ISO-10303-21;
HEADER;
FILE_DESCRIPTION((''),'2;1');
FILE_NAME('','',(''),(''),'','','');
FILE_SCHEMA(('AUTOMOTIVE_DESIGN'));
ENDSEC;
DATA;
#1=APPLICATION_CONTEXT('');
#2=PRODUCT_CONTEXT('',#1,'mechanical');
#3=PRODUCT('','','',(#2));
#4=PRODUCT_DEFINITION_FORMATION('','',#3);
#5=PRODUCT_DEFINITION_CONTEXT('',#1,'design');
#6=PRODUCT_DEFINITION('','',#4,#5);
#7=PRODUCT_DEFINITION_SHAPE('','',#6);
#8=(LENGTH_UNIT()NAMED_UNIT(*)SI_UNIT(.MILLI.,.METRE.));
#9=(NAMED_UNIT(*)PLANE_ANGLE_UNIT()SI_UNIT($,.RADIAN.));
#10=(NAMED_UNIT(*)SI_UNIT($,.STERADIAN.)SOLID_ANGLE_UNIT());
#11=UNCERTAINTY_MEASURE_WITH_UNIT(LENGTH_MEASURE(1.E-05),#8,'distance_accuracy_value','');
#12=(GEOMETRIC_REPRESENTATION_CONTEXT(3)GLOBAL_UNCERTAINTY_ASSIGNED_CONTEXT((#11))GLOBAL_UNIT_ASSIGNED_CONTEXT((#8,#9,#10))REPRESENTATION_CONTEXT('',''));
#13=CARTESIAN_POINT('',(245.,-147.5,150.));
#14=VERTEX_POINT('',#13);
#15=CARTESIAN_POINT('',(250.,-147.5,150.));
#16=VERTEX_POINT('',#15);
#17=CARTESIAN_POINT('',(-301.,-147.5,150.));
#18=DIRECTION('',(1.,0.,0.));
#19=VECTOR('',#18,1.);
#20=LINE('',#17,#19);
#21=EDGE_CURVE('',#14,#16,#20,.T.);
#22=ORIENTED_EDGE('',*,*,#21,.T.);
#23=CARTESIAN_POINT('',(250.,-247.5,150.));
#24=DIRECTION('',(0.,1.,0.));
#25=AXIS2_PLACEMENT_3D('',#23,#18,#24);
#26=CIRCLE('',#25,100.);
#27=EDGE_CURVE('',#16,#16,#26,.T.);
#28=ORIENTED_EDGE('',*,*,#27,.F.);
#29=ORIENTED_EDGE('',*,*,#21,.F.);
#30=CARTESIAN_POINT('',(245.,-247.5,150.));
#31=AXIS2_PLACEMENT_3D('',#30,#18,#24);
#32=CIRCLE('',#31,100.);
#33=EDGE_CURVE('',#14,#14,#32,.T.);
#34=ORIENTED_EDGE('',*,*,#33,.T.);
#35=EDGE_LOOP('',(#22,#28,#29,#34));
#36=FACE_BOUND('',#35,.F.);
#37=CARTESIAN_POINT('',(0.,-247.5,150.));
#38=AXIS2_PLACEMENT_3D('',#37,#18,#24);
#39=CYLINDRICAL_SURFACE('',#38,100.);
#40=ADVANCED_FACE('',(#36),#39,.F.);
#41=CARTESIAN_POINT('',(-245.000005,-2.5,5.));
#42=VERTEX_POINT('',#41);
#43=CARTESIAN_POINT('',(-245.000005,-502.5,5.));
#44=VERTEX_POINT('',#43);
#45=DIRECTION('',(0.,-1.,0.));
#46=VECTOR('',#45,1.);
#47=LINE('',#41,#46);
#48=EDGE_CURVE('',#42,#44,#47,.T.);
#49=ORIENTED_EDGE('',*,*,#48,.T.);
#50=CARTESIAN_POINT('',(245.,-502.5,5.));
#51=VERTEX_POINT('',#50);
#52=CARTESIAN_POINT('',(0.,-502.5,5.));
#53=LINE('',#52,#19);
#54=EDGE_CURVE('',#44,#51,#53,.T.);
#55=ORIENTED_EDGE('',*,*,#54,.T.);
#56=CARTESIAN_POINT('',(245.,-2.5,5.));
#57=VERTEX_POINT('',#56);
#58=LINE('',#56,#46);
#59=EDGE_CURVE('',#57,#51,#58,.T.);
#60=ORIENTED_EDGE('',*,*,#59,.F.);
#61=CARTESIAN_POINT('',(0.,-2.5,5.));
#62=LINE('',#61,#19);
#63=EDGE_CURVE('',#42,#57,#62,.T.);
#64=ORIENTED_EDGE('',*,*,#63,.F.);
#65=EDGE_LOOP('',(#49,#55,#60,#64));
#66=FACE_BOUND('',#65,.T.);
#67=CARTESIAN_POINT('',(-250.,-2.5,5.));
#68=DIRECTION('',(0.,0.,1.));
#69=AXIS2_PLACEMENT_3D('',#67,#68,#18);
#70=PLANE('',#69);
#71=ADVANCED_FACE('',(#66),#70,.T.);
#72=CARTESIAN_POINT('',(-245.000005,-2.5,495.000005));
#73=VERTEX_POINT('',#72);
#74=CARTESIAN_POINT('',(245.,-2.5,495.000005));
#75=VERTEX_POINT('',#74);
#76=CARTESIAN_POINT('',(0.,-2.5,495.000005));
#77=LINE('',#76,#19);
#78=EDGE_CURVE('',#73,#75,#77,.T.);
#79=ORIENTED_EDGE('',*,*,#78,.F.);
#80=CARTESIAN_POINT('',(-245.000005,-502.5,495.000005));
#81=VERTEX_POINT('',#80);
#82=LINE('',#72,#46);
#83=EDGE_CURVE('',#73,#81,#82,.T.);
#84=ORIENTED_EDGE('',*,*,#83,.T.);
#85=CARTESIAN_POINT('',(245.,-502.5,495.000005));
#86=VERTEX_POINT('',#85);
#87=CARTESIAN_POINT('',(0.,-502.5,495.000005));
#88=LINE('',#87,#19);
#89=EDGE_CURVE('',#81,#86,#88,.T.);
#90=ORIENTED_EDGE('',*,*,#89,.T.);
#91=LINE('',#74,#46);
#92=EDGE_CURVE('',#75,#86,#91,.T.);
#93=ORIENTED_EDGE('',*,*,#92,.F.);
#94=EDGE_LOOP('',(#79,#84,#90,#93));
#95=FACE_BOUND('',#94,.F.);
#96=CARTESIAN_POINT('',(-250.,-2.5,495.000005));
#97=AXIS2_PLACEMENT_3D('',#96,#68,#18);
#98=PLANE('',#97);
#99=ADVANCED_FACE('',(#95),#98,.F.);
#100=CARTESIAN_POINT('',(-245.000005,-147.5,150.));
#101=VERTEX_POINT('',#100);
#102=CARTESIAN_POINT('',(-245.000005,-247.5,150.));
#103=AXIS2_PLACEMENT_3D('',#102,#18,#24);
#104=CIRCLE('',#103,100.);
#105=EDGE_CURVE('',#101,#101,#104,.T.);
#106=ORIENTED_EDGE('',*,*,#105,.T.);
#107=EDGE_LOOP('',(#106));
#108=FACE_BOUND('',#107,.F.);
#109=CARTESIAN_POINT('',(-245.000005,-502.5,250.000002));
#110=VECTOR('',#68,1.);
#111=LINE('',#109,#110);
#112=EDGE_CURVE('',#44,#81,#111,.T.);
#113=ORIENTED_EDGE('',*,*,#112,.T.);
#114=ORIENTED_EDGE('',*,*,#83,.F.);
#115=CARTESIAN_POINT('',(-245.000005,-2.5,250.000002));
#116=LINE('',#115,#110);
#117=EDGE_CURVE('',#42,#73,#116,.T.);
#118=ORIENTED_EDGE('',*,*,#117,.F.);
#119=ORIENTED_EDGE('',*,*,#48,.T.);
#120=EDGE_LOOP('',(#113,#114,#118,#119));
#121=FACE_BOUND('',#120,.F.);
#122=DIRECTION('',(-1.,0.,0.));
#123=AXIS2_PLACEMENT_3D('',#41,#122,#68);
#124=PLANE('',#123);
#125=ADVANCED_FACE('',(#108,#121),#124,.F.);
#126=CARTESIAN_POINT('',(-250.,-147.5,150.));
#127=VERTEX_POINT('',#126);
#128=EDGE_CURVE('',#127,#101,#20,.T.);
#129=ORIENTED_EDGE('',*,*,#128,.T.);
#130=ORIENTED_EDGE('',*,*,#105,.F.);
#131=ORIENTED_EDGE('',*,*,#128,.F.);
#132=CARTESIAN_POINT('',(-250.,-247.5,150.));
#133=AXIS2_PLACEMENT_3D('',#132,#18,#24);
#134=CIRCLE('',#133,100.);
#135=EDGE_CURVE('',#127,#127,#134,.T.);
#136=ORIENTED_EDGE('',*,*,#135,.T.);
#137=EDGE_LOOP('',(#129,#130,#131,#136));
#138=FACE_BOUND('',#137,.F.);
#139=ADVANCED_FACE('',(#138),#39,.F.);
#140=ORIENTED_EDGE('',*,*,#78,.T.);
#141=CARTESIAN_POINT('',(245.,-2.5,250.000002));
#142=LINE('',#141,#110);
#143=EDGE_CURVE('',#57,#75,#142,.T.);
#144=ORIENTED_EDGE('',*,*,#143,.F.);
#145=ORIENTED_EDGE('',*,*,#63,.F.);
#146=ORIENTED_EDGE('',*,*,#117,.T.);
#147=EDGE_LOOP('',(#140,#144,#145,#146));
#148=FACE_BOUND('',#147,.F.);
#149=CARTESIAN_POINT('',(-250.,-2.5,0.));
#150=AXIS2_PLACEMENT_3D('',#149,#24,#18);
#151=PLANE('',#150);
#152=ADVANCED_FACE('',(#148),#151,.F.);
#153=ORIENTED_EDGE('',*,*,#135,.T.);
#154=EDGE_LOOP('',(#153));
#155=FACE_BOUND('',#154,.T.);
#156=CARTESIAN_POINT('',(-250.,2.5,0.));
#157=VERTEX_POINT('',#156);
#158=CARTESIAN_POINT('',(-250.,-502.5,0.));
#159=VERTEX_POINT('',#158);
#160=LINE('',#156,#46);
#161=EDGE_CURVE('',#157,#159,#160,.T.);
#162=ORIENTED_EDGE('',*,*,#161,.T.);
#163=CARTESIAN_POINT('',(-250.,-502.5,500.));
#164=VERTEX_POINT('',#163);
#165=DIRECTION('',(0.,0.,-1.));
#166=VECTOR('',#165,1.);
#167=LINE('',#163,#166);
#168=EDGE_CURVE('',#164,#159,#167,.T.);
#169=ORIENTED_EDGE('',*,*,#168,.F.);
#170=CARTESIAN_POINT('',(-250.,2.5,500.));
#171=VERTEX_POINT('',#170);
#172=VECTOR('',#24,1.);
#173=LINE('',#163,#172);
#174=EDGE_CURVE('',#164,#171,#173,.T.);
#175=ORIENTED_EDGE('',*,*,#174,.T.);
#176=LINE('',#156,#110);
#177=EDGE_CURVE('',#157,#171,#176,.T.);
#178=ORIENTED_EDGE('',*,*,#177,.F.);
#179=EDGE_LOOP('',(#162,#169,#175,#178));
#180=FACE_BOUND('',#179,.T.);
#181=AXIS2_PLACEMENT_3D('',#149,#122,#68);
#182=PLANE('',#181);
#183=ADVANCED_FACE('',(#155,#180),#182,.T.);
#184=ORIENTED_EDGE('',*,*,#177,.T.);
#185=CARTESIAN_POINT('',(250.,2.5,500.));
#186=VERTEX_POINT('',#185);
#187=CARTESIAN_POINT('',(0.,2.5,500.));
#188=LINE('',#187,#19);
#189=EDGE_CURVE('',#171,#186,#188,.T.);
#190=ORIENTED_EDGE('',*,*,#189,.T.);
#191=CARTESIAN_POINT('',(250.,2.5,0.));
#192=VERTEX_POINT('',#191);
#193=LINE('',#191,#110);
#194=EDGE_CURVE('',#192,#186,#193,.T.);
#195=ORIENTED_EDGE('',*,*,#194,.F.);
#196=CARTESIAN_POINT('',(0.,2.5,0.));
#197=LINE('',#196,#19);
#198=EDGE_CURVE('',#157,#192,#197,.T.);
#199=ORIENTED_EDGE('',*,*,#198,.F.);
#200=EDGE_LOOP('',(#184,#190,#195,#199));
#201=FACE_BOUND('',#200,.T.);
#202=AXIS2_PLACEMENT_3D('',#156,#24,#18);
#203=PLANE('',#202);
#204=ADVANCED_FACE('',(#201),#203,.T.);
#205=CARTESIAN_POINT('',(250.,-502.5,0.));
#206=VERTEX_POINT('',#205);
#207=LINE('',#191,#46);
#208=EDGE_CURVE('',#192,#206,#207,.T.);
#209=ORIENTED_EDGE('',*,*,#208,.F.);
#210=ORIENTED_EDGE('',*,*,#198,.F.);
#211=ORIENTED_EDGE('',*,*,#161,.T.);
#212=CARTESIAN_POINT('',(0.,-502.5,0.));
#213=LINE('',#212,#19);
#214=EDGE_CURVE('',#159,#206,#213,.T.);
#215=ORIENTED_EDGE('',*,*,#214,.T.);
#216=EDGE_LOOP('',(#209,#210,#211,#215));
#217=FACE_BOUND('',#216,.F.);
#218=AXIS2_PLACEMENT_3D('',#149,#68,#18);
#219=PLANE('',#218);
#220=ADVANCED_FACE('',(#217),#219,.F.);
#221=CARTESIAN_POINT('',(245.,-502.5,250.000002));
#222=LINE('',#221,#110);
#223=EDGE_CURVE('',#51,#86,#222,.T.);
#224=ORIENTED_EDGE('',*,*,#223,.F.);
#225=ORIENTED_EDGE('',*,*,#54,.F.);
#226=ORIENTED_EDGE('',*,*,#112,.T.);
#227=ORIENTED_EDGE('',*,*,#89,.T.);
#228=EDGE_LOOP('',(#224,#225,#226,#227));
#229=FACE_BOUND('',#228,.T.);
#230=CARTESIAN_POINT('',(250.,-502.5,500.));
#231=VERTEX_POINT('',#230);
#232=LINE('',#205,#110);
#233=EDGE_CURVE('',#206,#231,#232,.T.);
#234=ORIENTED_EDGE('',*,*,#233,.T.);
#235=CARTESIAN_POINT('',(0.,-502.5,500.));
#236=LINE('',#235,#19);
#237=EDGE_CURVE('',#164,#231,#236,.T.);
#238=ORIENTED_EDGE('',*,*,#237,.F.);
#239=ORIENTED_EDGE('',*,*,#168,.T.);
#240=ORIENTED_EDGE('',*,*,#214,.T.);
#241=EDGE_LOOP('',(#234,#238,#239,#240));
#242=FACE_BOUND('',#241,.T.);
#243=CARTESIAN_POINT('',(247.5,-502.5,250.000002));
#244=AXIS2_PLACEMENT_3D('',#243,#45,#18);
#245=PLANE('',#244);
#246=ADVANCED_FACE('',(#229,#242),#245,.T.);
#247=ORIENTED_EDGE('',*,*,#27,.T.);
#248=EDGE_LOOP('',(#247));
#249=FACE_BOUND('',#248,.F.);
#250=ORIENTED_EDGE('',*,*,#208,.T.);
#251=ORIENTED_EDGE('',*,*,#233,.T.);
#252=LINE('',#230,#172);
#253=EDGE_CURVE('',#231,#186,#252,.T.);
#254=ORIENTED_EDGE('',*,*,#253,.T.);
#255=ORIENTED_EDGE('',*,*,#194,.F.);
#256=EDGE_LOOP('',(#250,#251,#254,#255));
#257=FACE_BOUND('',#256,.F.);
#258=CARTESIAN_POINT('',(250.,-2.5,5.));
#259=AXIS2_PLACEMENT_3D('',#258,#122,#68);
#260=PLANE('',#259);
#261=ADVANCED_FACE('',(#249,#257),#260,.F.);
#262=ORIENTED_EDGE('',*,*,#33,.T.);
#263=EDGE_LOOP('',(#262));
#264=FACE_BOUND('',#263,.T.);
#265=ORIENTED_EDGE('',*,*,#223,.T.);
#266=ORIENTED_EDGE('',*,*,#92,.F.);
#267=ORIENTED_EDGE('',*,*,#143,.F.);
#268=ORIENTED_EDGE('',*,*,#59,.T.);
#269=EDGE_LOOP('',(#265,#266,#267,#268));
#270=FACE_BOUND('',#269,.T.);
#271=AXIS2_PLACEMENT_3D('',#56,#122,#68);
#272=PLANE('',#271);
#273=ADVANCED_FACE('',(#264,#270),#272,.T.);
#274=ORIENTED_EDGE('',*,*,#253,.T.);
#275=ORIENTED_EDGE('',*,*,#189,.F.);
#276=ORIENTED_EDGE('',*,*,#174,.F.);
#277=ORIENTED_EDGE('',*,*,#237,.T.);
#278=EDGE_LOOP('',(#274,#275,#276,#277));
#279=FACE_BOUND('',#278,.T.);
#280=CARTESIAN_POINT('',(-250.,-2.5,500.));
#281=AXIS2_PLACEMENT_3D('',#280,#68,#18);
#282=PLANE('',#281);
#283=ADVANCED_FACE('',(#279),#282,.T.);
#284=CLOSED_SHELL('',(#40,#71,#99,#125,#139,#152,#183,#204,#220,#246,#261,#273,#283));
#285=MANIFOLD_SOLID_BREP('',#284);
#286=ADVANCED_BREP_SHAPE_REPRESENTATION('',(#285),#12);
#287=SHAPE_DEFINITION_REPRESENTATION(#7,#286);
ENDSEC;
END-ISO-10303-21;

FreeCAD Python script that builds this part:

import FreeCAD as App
import Part
import Sketcher
from FreeCAD import Vector

doc = App.newDocument("Part")
params = doc.addObject("Spreadsheet::Sheet", "Params")
for row, (alias, value) in enumerate([
    ("sketch1_width", "500 mm"),
    ("sketch1_height", "5 mm"),
    ("pad1_length", "500 mm"),
    ("sketch2_width", "500 mm"),
    ("pad2_length", "500 mm"),
    ("sketch3_width", "500 mm"),
    ("sketch3_height", "5 mm"),
    ("pad3_length", "500 mm"),
    ("sketch4_width", "5 mm"),
    ("pad4_length", "500 mm"),
    ("sketch5_diameter", "200 mm"),
    ("pocket1_length", "602 mm"),
], start=1):
    params.set(f"A{row}", alias)
    params.set(f"B{row}", "=" + value)
    params.setAlias(f"B{row}", alias)

body = doc.addObject("PartDesign::Body", "Body")

# Sketch on XY plane
sketch1 = body.newObject("Sketcher::SketchObject", "Sketch")
sketch1.AttachmentSupport = (doc.getObject("XY_Plane"), [""])
sketch1.MapMode = "FlatFace"
sketch1.addGeometry([
    Part.LineSegment(Vector(-250, 2.5, 0), Vector(-250, -2.5, 0)),
    Part.LineSegment(Vector(-250, -2.5, 0), Vector(250, -2.5, 0)),
    Part.LineSegment(Vector(250, -2.5, 0), Vector(250, 2.5, 0)),
    Part.LineSegment(Vector(250, 2.5, 0), Vector(-250, 2.5, 0)),
], False)
sketch1.addConstraint([
    Sketcher.Constraint("Coincident", 0, 2, 1, 1),
    Sketcher.Constraint("Coincident", 1, 2, 2, 1),
    Sketcher.Constraint("Coincident", 2, 2, 3, 1),
    Sketcher.Constraint("Coincident", 3, 2, 0, 1),
    Sketcher.Constraint("Vertical", 0),
    Sketcher.Constraint("Horizontal", 1),
    Sketcher.Constraint("Vertical", 2),
    Sketcher.Constraint("Horizontal", 3),
    Sketcher.Constraint("Symmetric", 0, 2, 2, 2, -1, 1),
    Sketcher.Constraint("DistanceX", 1, 1, 1, 2, 500.0),
    Sketcher.Constraint("DistanceY", 0, 2, 0, 1, 5.0),
])
sketch1.setExpression("Constraints[9]", "Params.sketch1_width")
sketch1.setExpression("Constraints[10]", "Params.sketch1_height")
pad1 = body.newObject("PartDesign::Pad", "Pad")
pad1.Profile = sketch1
pad1.setExpression("Length", "Params.pad1_length")

# Sketch on XZ plane
sketch2 = body.newObject("Sketcher::SketchObject", "Sketch001")
sketch2.AttachmentSupport = (doc.getObject("XZ_Plane"), [""])
sketch2.MapMode = "FlatFace"
sketch2.AttachmentOffset = App.Placement(Vector(0, 0, 2.5), App.Rotation())
sketch2.addGeometry([
    Part.LineSegment(Vector(-250, 500, 0), Vector(-250, 495.000005, 0)),
    Part.LineSegment(Vector(-250, 495.000005, 0), Vector(250, 495.000005, 0)),
    Part.LineSegment(Vector(250, 495.000005, 0), Vector(250, 500, 0)),
    Part.LineSegment(Vector(250, 500, 0), Vector(-250, 500, 0)),
], False)
sketch2.addConstraint([
    Sketcher.Constraint("Coincident", 0, 2, 1, 1),
    Sketcher.Constraint("Coincident", 1, 2, 2, 1),
    Sketcher.Constraint("Coincident", 2, 2, 3, 1),
    Sketcher.Constraint("Coincident", 3, 2, 0, 1),
    Sketcher.Constraint("Vertical", 0),
    Sketcher.Constraint("Horizontal", 1),
    Sketcher.Constraint("Vertical", 2),
    Sketcher.Constraint("Horizontal", 3),
    Sketcher.Constraint("DistanceX", 1, 1, 1, 2, 500.0),
    Sketcher.Constraint("DistanceX", 0, 2, -1, 1, 250.0),
    Sketcher.Constraint("DistanceY", -1, 1, 2, 2, 500.0),
    Sketcher.Constraint("DistanceY", 0, 2, 0, 1, 4.999995),
])
sketch2.setExpression("Constraints[8]", "Params.sketch2_width")
pad2 = body.newObject("PartDesign::Pad", "Pad001")
pad2.Profile = sketch2
pad2.setExpression("Length", "Params.pad2_length")

# Sketch on XZ plane
sketch3 = body.newObject("Sketcher::SketchObject", "Sketch002")
sketch3.AttachmentSupport = (doc.getObject("XZ_Plane"), [""])
sketch3.MapMode = "FlatFace"
sketch3.AttachmentOffset = App.Placement(Vector(0, 0, 2.5), App.Rotation())
sketch3.addGeometry([
    Part.LineSegment(Vector(-250, 5, 0), Vector(-250, 0, 0)),
    Part.LineSegment(Vector(-250, 0, 0), Vector(250, 0, 0)),
    Part.LineSegment(Vector(250, 0, 0), Vector(250, 5, 0)),
    Part.LineSegment(Vector(250, 5, 0), Vector(-250, 5, 0)),
], False)
sketch3.addConstraint([
    Sketcher.Constraint("Coincident", 0, 2, 1, 1),
    Sketcher.Constraint("Coincident", 1, 2, 2, 1),
    Sketcher.Constraint("Coincident", 2, 2, 3, 1),
    Sketcher.Constraint("Coincident", 3, 2, 0, 1),
    Sketcher.Constraint("Vertical", 0),
    Sketcher.Constraint("Horizontal", 1),
    Sketcher.Constraint("Vertical", 2),
    Sketcher.Constraint("Horizontal", 3),
    Sketcher.Constraint("Symmetric", 0, 2, 1, 2, -1, 1),
    Sketcher.Constraint("DistanceX", 1, 1, 1, 2, 500.0),
    Sketcher.Constraint("DistanceY", 0, 2, 0, 1, 5.0),
])
sketch3.setExpression("Constraints[9]", "Params.sketch3_width")
sketch3.setExpression("Constraints[10]", "Params.sketch3_height")
pad3 = body.newObject("PartDesign::Pad", "Pad002")
pad3.Profile = sketch3
pad3.setExpression("Length", "Params.pad3_length")

# Sketch on XZ plane
sketch4 = body.newObject("Sketcher::SketchObject", "Sketch003")
sketch4.AttachmentSupport = (doc.getObject("XZ_Plane"), [""])
sketch4.MapMode = "FlatFace"
sketch4.AttachmentOffset = App.Placement(Vector(0, 0, 2.5), App.Rotation())
sketch4.addGeometry([
    Part.LineSegment(Vector(245, 495.000005, 0), Vector(245, 5, 0)),  # 0
    Part.LineSegment(Vector(245, 5, 0), Vector(250, 5, 0)),  # 1
    Part.LineSegment(Vector(250, 5, 0), Vector(250, 495.000005, 0)),  # 2
    Part.LineSegment(Vector(250, 495.000005, 0), Vector(245, 495.000005, 0)),  # 3
    Part.LineSegment(Vector(-250, 495.000005, 0), Vector(-250, 5, 0)),  # 4
    Part.LineSegment(Vector(-250, 5, 0), Vector(-245.000005, 5, 0)),  # 5
    Part.LineSegment(Vector(-245.000005, 5, 0), Vector(-245.000005, 495.000005, 0)),  # 6
    Part.LineSegment(Vector(-245.000005, 495.000005, 0), Vector(-250, 495.000005, 0)),  # 7
], False)
sketch4.addConstraint([
    Sketcher.Constraint("Coincident", 0, 2, 1, 1),
    Sketcher.Constraint("Coincident", 1, 2, 2, 1),
    Sketcher.Constraint("Coincident", 2, 2, 3, 1),
    Sketcher.Constraint("Coincident", 3, 2, 0, 1),
    Sketcher.Constraint("Coincident", 4, 2, 5, 1),
    Sketcher.Constraint("Coincident", 5, 2, 6, 1),
    Sketcher.Constraint("Coincident", 6, 2, 7, 1),
    Sketcher.Constraint("Coincident", 7, 2, 4, 1),
    Sketcher.Constraint("Vertical", 0),
    Sketcher.Constraint("Horizontal", 1),
    Sketcher.Constraint("Vertical", 2),
    Sketcher.Constraint("Horizontal", 3),
    Sketcher.Constraint("Vertical", 4),
    Sketcher.Constraint("Horizontal", 5),
    Sketcher.Constraint("Vertical", 6),
    Sketcher.Constraint("Horizontal", 7),
    Sketcher.Constraint("Symmetric", 1, 2, 4, 2, -2),
    Sketcher.Constraint("Symmetric", 3, 2, 6, 2, -2),
    Sketcher.Constraint("DistanceX", 1, 1, 1, 2, 5.0),
    Sketcher.Constraint("DistanceX", -1, 1, 0, 2, 245.0),
    Sketcher.Constraint("DistanceY", -1, 1, 0, 2, 5.0),
    Sketcher.Constraint("DistanceY", 0, 2, 0, 1, 490.000005),
])
sketch4.setExpression("Constraints[18]", "Params.sketch4_width")
pad4 = body.newObject("PartDesign::Pad", "Pad003")
pad4.Profile = sketch4
pad4.setExpression("Length", "Params.pad4_length")

# Sketch on YZ plane
sketch5 = body.newObject("Sketcher::SketchObject", "Sketch004")
sketch5.AttachmentSupport = (doc.getObject("YZ_Plane"), [""])
sketch5.MapMode = "FlatFace"
sketch5.addGeometry(Part.Circle(Vector(-247.5, 150, 0), Vector(0, 0, 1), 100), False)
sketch5.addConstraint([
    Sketcher.Constraint("Diameter", 0, 200.0),
    Sketcher.Constraint("DistanceY", -1, 1, 0, 3, 150.0),
    Sketcher.Constraint("DistanceX", 0, 3, -1, 1, 247.5),
])
sketch5.setExpression("Constraints[0]", "Params.sketch5_diameter")
pocket1 = body.newObject("PartDesign::Pocket", "Pocket")
pocket1.Profile = sketch5
pocket1.setExpression("Length", "Params.pocket1_length")
pocket1.Midplane = True

doc.recompute()
